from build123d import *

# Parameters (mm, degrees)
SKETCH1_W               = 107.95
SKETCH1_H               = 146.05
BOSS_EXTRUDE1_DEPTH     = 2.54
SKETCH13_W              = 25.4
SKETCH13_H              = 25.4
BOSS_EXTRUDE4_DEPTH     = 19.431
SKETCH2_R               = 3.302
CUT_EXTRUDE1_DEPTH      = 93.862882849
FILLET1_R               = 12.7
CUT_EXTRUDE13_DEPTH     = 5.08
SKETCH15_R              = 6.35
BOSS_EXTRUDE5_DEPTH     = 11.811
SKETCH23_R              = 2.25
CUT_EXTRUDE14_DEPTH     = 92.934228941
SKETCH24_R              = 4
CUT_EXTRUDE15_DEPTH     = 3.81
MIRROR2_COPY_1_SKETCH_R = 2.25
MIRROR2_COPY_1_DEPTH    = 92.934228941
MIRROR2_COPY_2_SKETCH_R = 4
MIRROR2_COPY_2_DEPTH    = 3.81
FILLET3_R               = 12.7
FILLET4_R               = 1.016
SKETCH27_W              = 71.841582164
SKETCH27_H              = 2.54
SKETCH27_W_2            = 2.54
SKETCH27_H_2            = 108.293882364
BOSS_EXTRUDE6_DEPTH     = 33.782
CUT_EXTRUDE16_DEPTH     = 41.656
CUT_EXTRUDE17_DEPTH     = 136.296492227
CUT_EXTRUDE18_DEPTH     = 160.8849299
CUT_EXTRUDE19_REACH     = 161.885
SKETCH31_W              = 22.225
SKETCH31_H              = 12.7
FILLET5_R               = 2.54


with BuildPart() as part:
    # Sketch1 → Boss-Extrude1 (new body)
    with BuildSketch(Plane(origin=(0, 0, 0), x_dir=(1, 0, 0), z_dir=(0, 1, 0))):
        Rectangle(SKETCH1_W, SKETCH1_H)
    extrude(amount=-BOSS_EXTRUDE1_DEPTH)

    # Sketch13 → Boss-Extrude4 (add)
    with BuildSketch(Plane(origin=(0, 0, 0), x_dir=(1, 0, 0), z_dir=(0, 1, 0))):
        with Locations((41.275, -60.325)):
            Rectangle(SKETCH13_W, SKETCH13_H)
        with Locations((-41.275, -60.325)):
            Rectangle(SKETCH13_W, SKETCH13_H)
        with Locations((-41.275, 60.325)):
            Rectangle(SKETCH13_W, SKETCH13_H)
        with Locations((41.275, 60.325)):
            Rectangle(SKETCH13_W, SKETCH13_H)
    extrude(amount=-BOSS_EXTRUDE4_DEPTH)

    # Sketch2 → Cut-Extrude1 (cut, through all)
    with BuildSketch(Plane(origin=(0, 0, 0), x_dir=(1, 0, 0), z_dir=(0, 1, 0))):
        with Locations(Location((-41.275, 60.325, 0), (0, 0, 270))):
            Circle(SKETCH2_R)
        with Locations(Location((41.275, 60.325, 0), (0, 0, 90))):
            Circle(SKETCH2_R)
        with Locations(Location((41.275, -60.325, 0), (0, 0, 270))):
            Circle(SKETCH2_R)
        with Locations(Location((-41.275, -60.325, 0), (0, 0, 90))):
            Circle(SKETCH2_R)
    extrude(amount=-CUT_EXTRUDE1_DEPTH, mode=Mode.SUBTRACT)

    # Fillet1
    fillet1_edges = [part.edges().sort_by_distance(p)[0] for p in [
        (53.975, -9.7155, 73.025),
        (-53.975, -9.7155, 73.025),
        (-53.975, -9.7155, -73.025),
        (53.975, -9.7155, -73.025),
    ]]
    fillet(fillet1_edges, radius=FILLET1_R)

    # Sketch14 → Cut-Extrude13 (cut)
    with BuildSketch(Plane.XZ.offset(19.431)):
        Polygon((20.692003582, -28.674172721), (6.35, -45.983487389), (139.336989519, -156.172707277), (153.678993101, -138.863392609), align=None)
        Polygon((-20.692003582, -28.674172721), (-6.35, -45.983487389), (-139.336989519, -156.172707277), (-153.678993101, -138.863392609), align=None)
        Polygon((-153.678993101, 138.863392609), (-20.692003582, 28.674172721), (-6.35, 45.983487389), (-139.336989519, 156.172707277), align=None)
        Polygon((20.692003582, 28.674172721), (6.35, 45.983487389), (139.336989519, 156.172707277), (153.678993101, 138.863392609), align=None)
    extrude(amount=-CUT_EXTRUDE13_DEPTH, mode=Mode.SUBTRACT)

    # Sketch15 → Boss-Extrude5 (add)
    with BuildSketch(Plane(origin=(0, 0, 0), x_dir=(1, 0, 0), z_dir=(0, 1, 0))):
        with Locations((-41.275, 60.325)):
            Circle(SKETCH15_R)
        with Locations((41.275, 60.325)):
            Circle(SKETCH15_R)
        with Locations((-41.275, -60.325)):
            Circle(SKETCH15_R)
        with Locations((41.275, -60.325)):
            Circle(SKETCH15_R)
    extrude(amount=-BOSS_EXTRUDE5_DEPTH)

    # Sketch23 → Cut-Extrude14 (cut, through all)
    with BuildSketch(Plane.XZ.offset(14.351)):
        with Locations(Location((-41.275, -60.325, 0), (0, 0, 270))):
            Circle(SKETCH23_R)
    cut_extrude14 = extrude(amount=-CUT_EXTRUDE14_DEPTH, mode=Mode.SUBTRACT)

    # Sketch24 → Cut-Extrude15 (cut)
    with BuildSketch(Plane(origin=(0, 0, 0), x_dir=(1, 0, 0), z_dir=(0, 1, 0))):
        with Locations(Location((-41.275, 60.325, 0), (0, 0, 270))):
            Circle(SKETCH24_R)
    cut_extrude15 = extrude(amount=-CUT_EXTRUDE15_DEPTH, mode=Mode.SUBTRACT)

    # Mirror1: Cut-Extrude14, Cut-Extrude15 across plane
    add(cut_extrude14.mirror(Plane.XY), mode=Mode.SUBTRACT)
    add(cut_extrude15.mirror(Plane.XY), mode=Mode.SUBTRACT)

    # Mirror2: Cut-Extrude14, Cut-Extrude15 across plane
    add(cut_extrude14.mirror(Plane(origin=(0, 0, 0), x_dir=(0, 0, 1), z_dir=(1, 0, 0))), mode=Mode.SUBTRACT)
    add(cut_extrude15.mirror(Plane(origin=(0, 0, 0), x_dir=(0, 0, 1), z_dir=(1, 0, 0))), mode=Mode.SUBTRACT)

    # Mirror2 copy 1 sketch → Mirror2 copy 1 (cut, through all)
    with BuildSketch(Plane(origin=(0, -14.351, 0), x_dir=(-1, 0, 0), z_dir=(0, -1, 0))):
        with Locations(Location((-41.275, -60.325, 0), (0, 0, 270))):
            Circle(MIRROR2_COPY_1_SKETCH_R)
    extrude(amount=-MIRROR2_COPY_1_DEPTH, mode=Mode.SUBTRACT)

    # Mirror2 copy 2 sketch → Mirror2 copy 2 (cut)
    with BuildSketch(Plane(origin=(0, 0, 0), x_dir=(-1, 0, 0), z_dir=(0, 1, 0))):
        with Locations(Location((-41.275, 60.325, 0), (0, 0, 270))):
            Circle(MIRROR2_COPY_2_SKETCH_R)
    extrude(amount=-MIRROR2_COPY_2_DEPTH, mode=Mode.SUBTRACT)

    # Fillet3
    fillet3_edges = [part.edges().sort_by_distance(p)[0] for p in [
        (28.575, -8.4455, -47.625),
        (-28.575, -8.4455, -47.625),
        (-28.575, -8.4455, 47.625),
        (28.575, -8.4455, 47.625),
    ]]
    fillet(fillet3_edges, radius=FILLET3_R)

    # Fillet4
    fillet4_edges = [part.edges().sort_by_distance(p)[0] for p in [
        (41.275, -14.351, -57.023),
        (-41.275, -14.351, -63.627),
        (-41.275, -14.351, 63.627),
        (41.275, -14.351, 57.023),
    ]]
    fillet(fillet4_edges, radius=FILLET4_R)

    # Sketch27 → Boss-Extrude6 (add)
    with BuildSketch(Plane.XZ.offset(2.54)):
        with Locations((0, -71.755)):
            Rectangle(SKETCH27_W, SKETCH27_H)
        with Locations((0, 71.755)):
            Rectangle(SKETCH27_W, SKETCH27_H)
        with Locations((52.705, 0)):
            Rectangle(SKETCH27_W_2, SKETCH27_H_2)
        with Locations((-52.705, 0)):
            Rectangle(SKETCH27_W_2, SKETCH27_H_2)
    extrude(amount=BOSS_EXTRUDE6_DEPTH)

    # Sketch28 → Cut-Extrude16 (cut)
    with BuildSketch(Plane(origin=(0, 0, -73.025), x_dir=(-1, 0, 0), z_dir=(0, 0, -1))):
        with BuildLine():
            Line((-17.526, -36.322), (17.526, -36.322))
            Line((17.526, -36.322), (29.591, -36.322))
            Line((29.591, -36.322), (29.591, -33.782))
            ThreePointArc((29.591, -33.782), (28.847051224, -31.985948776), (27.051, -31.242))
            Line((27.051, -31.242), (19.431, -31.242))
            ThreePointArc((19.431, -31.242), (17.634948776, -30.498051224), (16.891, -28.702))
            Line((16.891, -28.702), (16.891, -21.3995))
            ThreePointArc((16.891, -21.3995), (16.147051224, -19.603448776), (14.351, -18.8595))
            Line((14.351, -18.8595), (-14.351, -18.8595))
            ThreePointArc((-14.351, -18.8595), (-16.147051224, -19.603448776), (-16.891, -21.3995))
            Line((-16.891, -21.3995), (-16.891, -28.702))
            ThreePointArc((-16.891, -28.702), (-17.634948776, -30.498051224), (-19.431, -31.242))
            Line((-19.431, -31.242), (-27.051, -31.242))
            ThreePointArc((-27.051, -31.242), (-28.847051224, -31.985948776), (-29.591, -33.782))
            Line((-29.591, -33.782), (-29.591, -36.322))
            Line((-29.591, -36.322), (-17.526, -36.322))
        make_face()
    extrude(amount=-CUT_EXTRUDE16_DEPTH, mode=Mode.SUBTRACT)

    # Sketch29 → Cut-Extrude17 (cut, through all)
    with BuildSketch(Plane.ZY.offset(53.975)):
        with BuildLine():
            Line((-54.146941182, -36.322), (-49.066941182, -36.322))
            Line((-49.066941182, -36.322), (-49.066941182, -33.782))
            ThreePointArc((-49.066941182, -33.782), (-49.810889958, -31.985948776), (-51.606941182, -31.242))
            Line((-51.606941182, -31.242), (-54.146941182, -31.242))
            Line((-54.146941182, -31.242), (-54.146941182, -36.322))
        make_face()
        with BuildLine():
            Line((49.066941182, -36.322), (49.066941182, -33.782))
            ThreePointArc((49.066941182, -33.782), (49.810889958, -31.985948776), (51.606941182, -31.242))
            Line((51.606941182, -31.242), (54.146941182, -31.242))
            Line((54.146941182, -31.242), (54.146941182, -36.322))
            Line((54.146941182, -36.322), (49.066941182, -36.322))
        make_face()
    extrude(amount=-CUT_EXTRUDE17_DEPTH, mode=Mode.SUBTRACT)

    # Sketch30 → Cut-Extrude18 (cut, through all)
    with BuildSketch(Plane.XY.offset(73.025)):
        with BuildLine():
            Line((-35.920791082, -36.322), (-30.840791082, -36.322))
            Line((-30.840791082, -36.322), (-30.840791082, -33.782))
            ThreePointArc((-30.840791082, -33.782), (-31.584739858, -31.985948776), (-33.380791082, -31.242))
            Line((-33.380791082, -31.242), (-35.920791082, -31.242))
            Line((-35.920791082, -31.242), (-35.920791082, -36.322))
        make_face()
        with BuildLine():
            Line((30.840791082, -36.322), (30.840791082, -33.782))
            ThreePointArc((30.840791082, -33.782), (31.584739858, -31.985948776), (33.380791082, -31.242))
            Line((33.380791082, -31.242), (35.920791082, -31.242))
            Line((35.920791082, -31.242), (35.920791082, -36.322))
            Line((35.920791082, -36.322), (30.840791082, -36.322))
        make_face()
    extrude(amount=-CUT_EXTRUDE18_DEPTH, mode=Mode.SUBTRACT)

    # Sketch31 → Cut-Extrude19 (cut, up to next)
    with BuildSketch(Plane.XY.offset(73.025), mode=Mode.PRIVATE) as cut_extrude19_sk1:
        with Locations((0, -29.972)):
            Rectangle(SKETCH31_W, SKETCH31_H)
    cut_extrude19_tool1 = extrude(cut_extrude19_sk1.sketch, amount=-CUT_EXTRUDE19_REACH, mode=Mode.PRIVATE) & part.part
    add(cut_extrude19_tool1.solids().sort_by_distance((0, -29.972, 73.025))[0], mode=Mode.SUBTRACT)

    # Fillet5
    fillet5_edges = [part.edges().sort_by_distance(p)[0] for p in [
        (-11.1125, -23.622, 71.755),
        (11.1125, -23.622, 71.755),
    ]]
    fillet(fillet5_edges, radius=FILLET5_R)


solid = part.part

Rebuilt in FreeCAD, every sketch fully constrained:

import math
import FreeCAD as App
import Part
import Sketcher

V = App.Vector
Q = App.Units.Quantity


def edges_at(feature, points):
    """Names of the edges that pass closest to the given points."""
    edges = feature.Shape.Edges
    near = lambda p: min(range(len(edges)), key=lambda i: edges[i].distToShape(Part.Vertex(*p))[0])
    return sorted({f"Edge{near(p) + 1}" for p in points})


def add_polygon(sketch, points):
    """Adds a closed chain of lines whose ends are joined by coincident constraints."""
    first, n = sketch.GeometryCount, len(points)
    for a, b in zip(points, points[1:] + points[:1]):
        sketch.addGeometry(Part.LineSegment(App.Vector(*a, 0), App.Vector(*b, 0)), False)
    for i in range(n):
        sketch.addConstraint(Sketcher.Constraint("Coincident", first + i, 2, first + (i + 1) % n, 1))

doc = App.newDocument("Part")
params = doc.addObject("Spreadsheet::Sheet", "Params")
for row, (alias, value) in enumerate([
    ("sketch1_width", "4.25 in"),
    ("sketch1_height", "5.75 in"),
    ("pad1_length", "0.1 in"),
    ("sketch2_width", "1 in"),
    ("pad2_length", "0.765 in"),
    ("sketch3_diameter", "0.26 in"),
    ("fillet_radius", "0.5 in"),
    ("sketch4_length", "0.885 in"),
    ("pocket2_length", "0.2 in"),
    ("sketch5_diameter", "0.5 in"),
    ("pad3_length", "0.465 in"),
    ("pocket4_length", "0.15 in"),
    ("pocket6_length", "0.15 in"),
    ("fillet2_radius", "0.5 in"),
    ("fillet3_radius", "0.04 in"),
    ("sketch10_width", "0.1 in"),
    ("pad4_length", "1.33 in"),
    ("sketch11_radius", "0.1 in"),
    ("sketch11_width", "0.3 in"),
    ("sketch11_height", "0.1 in"),
    ("sketch11_width2", "1.13 in"),
    ("pocket7_length", "1.64 in"),
    ("sketch12_radius", "0.1 in"),
    ("sketch12_width", "0.1 in"),
    ("sketch13_radius", "0.1 in"),
    ("sketch13_width", "0.2 in"),
    ("sketch14_height", "0.5 in"),
    ("sketch14_width", "0.875 in"),
    ("fillet4_radius", "0.1 in"),
], start=1):
    params.set(f"A{row}", alias)
    params.set(f"B{row}", "=" + value)
    params.setAlias(f"B{row}", alias)

body = doc.addObject("PartDesign::Body", "Body")

# Sketch on XZ plane
sketch1 = body.newObject("Sketcher::SketchObject", "Sketch")
sketch1.AttachmentSupport = (doc.getObject("XZ_Plane"), [""])
sketch1.MapMode = "FlatFace"
add_polygon(sketch1, [(-54, -73), (-54, 73), (54, 73), (54, -73)])  # lines 0-3
sketch1.addConstraint([
    Sketcher.Constraint("Vertical", 0),
    Sketcher.Constraint("Horizontal", 1),
    Sketcher.Constraint("Vertical", 2),
    Sketcher.Constraint("Horizontal", 3),
    Sketcher.Constraint("Symmetric", 0, 2, 2, 2, -1, 1),
    Sketcher.Constraint("DistanceX", 1, 1, 1, 2, Q("4.25 in")),
    Sketcher.Constraint("DistanceY", 0, 1, 0, 2, Q("5.75 in")),
])
sketch1.setExpression("Constraints[9]", "Params.sketch1_width")
sketch1.setExpression("Constraints[10]", "Params.sketch1_height")
pad1 = body.newObject("PartDesign::Pad", "Pad")
pad1.Profile = sketch1
pad1.setExpression("Length", "Params.pad1_length")

# Sketch on XZ plane
sketch2 = body.newObject("Sketcher::SketchObject", "Sketch001")
sketch2.AttachmentSupport = (doc.getObject("XZ_Plane"), [""])
sketch2.MapMode = "FlatFace"
add_polygon(sketch2, [(29, 48), (29, 73), (54, 73), (54, 48)])  # lines 0-3
add_polygon(sketch2, [(-54, 48), (-54, 73), (-29, 73), (-29, 48)])  # lines 4-7
add_polygon(sketch2, [(-54, -73), (-54, -48), (-29, -48), (-29, -73)])  # lines 8-11
add_polygon(sketch2, [(29, -73), (29, -48), (54, -48), (54, -73)])  # lines 12-15
sketch2.addConstraint([
    Sketcher.Constraint("Vertical", 0),
    Sketcher.Constraint("Horizontal", 1),
    Sketcher.Constraint("Vertical", 2),
    Sketcher.Constraint("Horizontal", 3),
    Sketcher.Constraint("Vertical", 4),
    Sketcher.Constraint("Horizontal", 5),
    Sketcher.Constraint("Vertical", 6),
    Sketcher.Constraint("Horizontal", 7),
    Sketcher.Constraint("Vertical", 8),
    Sketcher.Constraint("Horizontal", 9),
    Sketcher.Constraint("Vertical", 10),
    Sketcher.Constraint("Horizontal", 11),
    Sketcher.Constraint("Vertical", 12),
    Sketcher.Constraint("Horizontal", 13),
    Sketcher.Constraint("Vertical", 14),
    Sketcher.Constraint("Horizontal", 15),
    Sketcher.Constraint("Symmetric", 2, 2, 8, 2, -1, 1),
    Sketcher.Constraint("Symmetric", 0, 2, 10, 2, -1, 1),
    Sketcher.Constraint("Symmetric", 6, 2, 12, 2, -1, 1),
    Sketcher.Constraint("Symmetric", 4, 2, 14, 2, -1, 1),
    Sketcher.Constraint("Symmetric", 1, 2, 4, 2, -2),
    Sketcher.Constraint("Symmetric", 3, 2, 6, 2, -2),
    Sketcher.Constraint("Equal", 15, 0),
    Sketcher.Constraint("DistanceX", 1, 1, 1, 2, Q("1 in")),
    Sketcher.Constraint("DistanceX", 4, 2, 0, 2, Q("3.25 in")),
    Sketcher.Constraint("DistanceY", 8, 2, 7, 2, Q("3.75 in")),
])
sketch2.setExpression("Constraints[39]", "Params.sketch2_width")
pad2 = body.newObject("PartDesign::Pad", "Pad001")
pad2.Profile = sketch2
pad2.setExpression("Length", "Params.pad2_length")

# Sketch on XZ plane
sketch3 = body.newObject("Sketcher::SketchObject", "Sketch002")
sketch3.AttachmentSupport = (doc.getObject("XZ_Plane"), [""])
sketch3.MapMode = "FlatFace"
sketch3.addGeometry([
    Part.Circle(V(-41.3, -60.3, 0), V(0, 0, 1), 3.3),
    Part.Circle(V(41.3, -60.3, 0), V(0, 0, 1), 3.3),
    Part.Circle(V(41.3, 60.3, 0), V(0, 0, 1), 3.3),
    Part.Circle(V(-41.3, 60.3, 0), V(0, 0, 1), 3.3),
], False)
sketch3.addConstraint([
    Sketcher.Constraint("Equal", 0, 1),
    Sketcher.Constraint("Equal", 1, 2),
    Sketcher.Constraint("Equal", 2, 3),
    Sketcher.Constraint("Symmetric", 0, 3, 2, 3, -1, 1),
    Sketcher.Constraint("Symmetric", 1, 3, 3, 3, -1, 1),
    Sketcher.Constraint("Symmetric", 0, 3, 1, 3, -2),
    Sketcher.Constraint("Diameter", 0, Q("0.26 in")),
    Sketcher.Constraint("DistanceX", 0, 3, 1, 3, Q("3.25 in")),
    Sketcher.Constraint("DistanceY", 1, 3, 2, 3, Q("4.75 in")),
])
sketch3.setExpression("Constraints[6]", "Params.sketch3_diameter")
pocket1 = body.newObject("PartDesign::Pocket", "Pocket")
pocket1.Profile = sketch3
pocket1.Type = "ThroughAll"
pocket1.Reversed = True
doc.recompute()

fillet = body.newObject("PartDesign::Fillet", "Fillet")
fillet.Base = (pocket1, edges_at(pocket1, [
    (53.975, -9.716, 73.025),
    (-53.975, -9.716, 73.025),
    (-53.975, -9.716, -73.025),
    (53.975, -9.716, -73.025),
]))
fillet.setExpression("Radius", "Params.fillet_radius")

# Sketch on XZ plane
sketch4 = body.newObject("Sketcher::SketchObject", "Sketch003")
sketch4.AttachmentSupport = (doc.getObject("XZ_Plane"), [""])
sketch4.MapMode = "FlatFace"
sketch4.AttachmentOffset = App.Placement(V(0, 0, 0.765 * 25.4), App.Rotation())
add_polygon(sketch4, [(21, -29), (6, -46), (139, -156), (154, -139)])  # lines 0-3
add_polygon(sketch4, [(-6, -46), (-21, -29), (-154, -139), (-139, -156)])  # lines 4-7
add_polygon(sketch4, [(-154, 139), (-21, 29), (-6, 46), (-139, 156)])  # lines 8-11
add_polygon(sketch4, [(6, 46), (21, 29), (154, 139), (139, 156)])  # lines 12-15
sketch4.addConstraint([
    Sketcher.Constraint("Symmetric", 3, 2, 8, 2, -1, 1),
    Sketcher.Constraint("Symmetric", 0, 2, 9, 2, -1, 1),
    Sketcher.Constraint("Symmetric", 1, 2, 10, 2, -1, 1),
    Sketcher.Constraint("Symmetric", 2, 2, 11, 2, -1, 1),
    Sketcher.Constraint("Symmetric", 4, 2, 12, 2, -1, 1),
    Sketcher.Constraint("Symmetric", 5, 2, 13, 2, -1, 1),
    Sketcher.Constraint("Symmetric", 6, 2, 14, 2, -1, 1),
    Sketcher.Constraint("Symmetric", 7, 2, 15, 2, -1, 1),
    Sketcher.Constraint("Symmetric", 3, 2, 4, 2, -2),
    Sketcher.Constraint("Symmetric", 2, 2, 5, 2, -2),
    Sketcher.Constraint("Symmetric", 1, 2, 6, 2, -2),
    Sketcher.Constraint("Symmetric", 0, 2, 7, 2, -2),
    Sketcher.Constraint("Perpendicular", 0, 1),
    Sketcher.Constraint("Perpendicular", 1, 2),
    Sketcher.Constraint("Perpendicular", 2, 3),
    Sketcher.Constraint("DistanceX", 7, 2, 0, 2, Q("0.5 in")),
    Sketcher.Constraint("Distance", 0, Q("0.885 in")),
    Sketcher.Constraint("DistanceX", 4, 2, 2, 2, Q("6.8649999 in")),
    Sketcher.Constraint("Distance", 1, Q("172.70554 mm")),
    Sketcher.Constraint("DistanceY", 7, 2, 8, 2, Q("74.65766 mm")),
])
sketch4.setExpression("Constraints[32]", "Params.sketch4_length")
pocket2 = body.newObject("PartDesign::Pocket", "Pocket001")
pocket2.Profile = sketch4
pocket2.setExpression("Length", "Params.pocket2_length")

# Sketch on XZ plane
sketch5 = body.newObject("Sketcher::SketchObject", "Sketch004")
sketch5.AttachmentSupport = (doc.getObject("XZ_Plane"), [""])
sketch5.MapMode = "FlatFace"
sketch5.addGeometry([
    Part.Circle(V(-41, -60, 0), V(0, 0, 1), 6),
    Part.Circle(V(41, -60, 0), V(0, 0, 1), 6),
    Part.Circle(V(-41, 60, 0), V(0, 0, 1), 6),
    Part.Circle(V(41, 60, 0), V(0, 0, 1), 6),
], False)
sketch5.addConstraint([
    Sketcher.Constraint("Equal", 0, 1),
    Sketcher.Constraint("Equal", 1, 2),
    Sketcher.Constraint("Equal", 2, 3),
    Sketcher.Constraint("Symmetric", 1, 3, 2, 3, -1, 1),
    Sketcher.Constraint("Symmetric", 0, 3, 3, 3, -1, 1),
    Sketcher.Constraint("Symmetric", 0, 3, 1, 3, -2),
    Sketcher.Constraint("Diameter", 0, Q("0.5 in")),
    Sketcher.Constraint("DistanceX", 0, 3, 1, 3, Q("3.25 in")),
    Sketcher.Constraint("DistanceY", 0, 3, 2, 3, Q("4.75 in")),
])
sketch5.setExpression("Constraints[6]", "Params.sketch5_diameter")
pad3 = body.newObject("PartDesign::Pad", "Pad002")
pad3.Profile = sketch5
pad3.setExpression("Length", "Params.pad3_length")

# Sketch on XZ plane
sketch6 = body.newObject("Sketcher::SketchObject", "Sketch005")
sketch6.AttachmentSupport = (doc.getObject("XZ_Plane"), [""])
sketch6.MapMode = "FlatFace"
sketch6.AttachmentOffset = App.Placement(V(0, 0, 0.565 * 25.4), App.Rotation())
sketch6.addGeometry(Part.Circle(V(-41.3, -60.3, 0), V(0, 0, 1), 2.2), False)
sketch6.addConstraint([
    Sketcher.Constraint("Diameter", 0, Q("4.5 mm")),
    Sketcher.Constraint("DistanceX", 0, 3, -1, 1, Q("1.625 in")),
    Sketcher.Constraint("DistanceY", 0, 3, -1, 1, Q("2.375 in")),
])
pocket3 = body.newObject("PartDesign::Pocket", "Pocket002")
pocket3.Profile = sketch6
pocket3.Type = "ThroughAll"

# Sketch on XZ plane
sketch7 = body.newObject("Sketcher::SketchObject", "Sketch006")
sketch7.AttachmentSupport = (doc.getObject("XZ_Plane"), [""])
sketch7.MapMode = "FlatFace"
sketch7.addGeometry(Part.Circle(V(-41.3, -60.3, 0), V(0, 0, 1), 4), False)
sketch7.addConstraint([
    Sketcher.Constraint("Diameter", 0, Q("8 mm")),
    Sketcher.Constraint("DistanceX", 0, 3, -1, 1, Q("1.625 in")),
    Sketcher.Constraint("DistanceY", 0, 3, -1, 1, Q("2.375 in")),
])
pocket4 = body.newObject("PartDesign::Pocket", "Pocket003")
pocket4.Profile = sketch7
pocket4.setExpression("Length", "Params.pocket4_length")
pocket4.Reversed = True
doc.recompute()

mirrored = body.newObject("PartDesign::Mirrored", "Mirrored")
mirrored.Originals = [pocket3, pocket4]
mirrored.MirrorPlane = (doc.getObject("XY_Plane"), [""])
body.Tip = mirrored
doc.recompute()

mirrored2 = body.newObject("PartDesign::Mirrored", "Mirrored001")
mirrored2.Originals = [pocket3, pocket4]
mirrored2.MirrorPlane = (doc.getObject("YZ_Plane"), [""])
body.Tip = mirrored2

# Sketch on XZ plane
sketch8 = body.newObject("Sketcher::SketchObject", "Sketch007")
sketch8.AttachmentSupport = (doc.getObject("XZ_Plane"), [""])
sketch8.MapMode = "FlatFace"
sketch8.AttachmentOffset = App.Placement(V(0, 0, 0.565 * 25.4), App.Rotation())
sketch8.addGeometry(Part.Circle(V(41.3, 60.3, 0), V(0, 0, 1), 2.2), False)
sketch8.addConstraint([
    Sketcher.Constraint("Diameter", 0, Q("4.5 mm")),
    Sketcher.Constraint("DistanceX", -1, 1, 0, 3, Q("1.625 in")),
    Sketcher.Constraint("DistanceY", -1, 1, 0, 3, Q("2.375 in")),
])
pocket5 = body.newObject("PartDesign::Pocket", "Pocket004")
pocket5.Profile = sketch8
pocket5.Type = "ThroughAll"

# Sketch on XZ plane
sketch9 = body.newObject("Sketcher::SketchObject", "Sketch008")
sketch9.AttachmentSupport = (doc.getObject("XZ_Plane"), [""])
sketch9.MapMode = "FlatFace"
sketch9.addGeometry(Part.Circle(V(41.3, 60.3, 0), V(0, 0, 1), 4), False)
sketch9.addConstraint([
    Sketcher.Constraint("Diameter", 0, Q("8 mm")),
    Sketcher.Constraint("DistanceX", -1, 1, 0, 3, Q("1.625 in")),
    Sketcher.Constraint("DistanceY", -1, 1, 0, 3, Q("2.375 in")),
])
pocket6 = body.newObject("PartDesign::Pocket", "Pocket005")
pocket6.Profile = sketch9
pocket6.setExpression("Length", "Params.pocket6_length")
pocket6.Reversed = True
doc.recompute()

fillet2 = body.newObject("PartDesign::Fillet", "Fillet001")
fillet2.Base = (pocket6, edges_at(pocket6, [
    (28.575, -8.445, -47.625),
    (-28.575, -8.445, -47.625),
    (-28.575, -8.445, 47.625),
    (28.575, -8.445, 47.625),
]))
fillet2.setExpression("Radius", "Params.fillet2_radius")
doc.recompute()

fillet3 = body.newObject("PartDesign::Fillet", "Fillet002")
fillet3.Base = (fillet2, edges_at(fillet2, [
    (41.275, -14.351, -57.023),
    (-41.275, -14.351, -63.627),
    (-41.275, -14.351, 63.627),
    (41.275, -14.351, 57.023),
]))
fillet3.setExpression("Radius", "Params.fillet3_radius")

# Sketch on XZ plane
sketch10 = body.newObject("Sketcher::SketchObject", "Sketch009")
sketch10.AttachmentSupport = (doc.getObject("XZ_Plane"), [""])
sketch10.MapMode = "FlatFace"
sketch10.AttachmentOffset = App.Placement(V(0, 0, 0.1 * 25.4), App.Rotation())
add_polygon(sketch10, [(-35.9, -70.5), (-35.9, -73), (35.9, -73), (35.9, -70.5)])  # lines 0-3
add_polygon(sketch10, [(-35.9, 73), (-35.9, 70.5), (35.9, 70.5), (35.9, 73)])  # lines 4-7
add_polygon(sketch10, [(51.4, 54.1), (51.4, -54.1), (54, -54.1), (54, 54.1)])  # lines 8-11
add_polygon(sketch10, [(-54, 54.1), (-54, -54.1), (-51.4, -54.1), (-51.4, 54.1)])  # lines 12-15
sketch10.addConstraint([
    Sketcher.Constraint("Vertical", 0),
    Sketcher.Constraint("Horizontal", 1),
    Sketcher.Constraint("Vertical", 2),
    Sketcher.Constraint("Horizontal", 3),
    Sketcher.Constraint("Vertical", 4),
    Sketcher.Constraint("Horizontal", 5),
    Sketcher.Constraint("Vertical", 6),
    Sketcher.Constraint("Horizontal", 7),
    Sketcher.Constraint("Vertical", 8),
    Sketcher.Constraint("Horizontal", 9),
    Sketcher.Constraint("Vertical", 10),
    Sketcher.Constraint("Horizontal", 11),
    Sketcher.Constraint("Vertical", 12),
    Sketcher.Constraint("Horizontal", 13),
    Sketcher.Constraint("Vertical", 14),
    Sketcher.Constraint("Horizontal", 15),
    Sketcher.Constraint("Symmetric", 2, 2, 4, 2, -1, 1),
    Sketcher.Constraint("Symmetric", 0, 2, 6, 2, -1, 1),
    Sketcher.Constraint("Symmetric", 10, 2, 12, 2, -1, 1),
    Sketcher.Constraint("Symmetric", 8, 2, 14, 2, -1, 1),
    Sketcher.Constraint("Horizontal", 9, 2, 12, 2),
    Sketcher.Constraint("Vertical", 3, 2, 4, 2),
    Sketcher.Constraint("Equal", 15, 0),
    Sketcher.Constraint("DistanceX", 9, 1, 9, 2, Q("0.1 in")),
    Sketcher.Constraint("DistanceY", 3, 2, 4, 2, Q("5.55 in")),
    Sketcher.Constraint("DistanceX", 12, 2, 8, 2, Q("4.15 in")),
    Sketcher.Constraint("DistanceX", 1, 1, 1, 2, Q("71.841582 mm")),
    Sketcher.Constraint("DistanceY", 8, 2, 8, 1, Q("108.293882 mm")),
])
sketch10.setExpression("Constraints[39]", "Params.sketch10_width")
pad4 = body.newObject("PartDesign::Pad", "Pad003")
pad4.Profile = sketch10
pad4.setExpression("Length", "Params.pad4_length")

# Sketch on XY plane
sketch11 = body.newObject("Sketcher::SketchObject", "Sketch010")
sketch11.AttachmentSupport = (doc.getObject("XY_Plane"), [""])
sketch11.MapMode = "FlatFace"
sketch11.AttachmentOffset = App.Placement(V(0, 0, -2.875 * 25.4), App.Rotation())
sketch11.addGeometry([
    Part.LineSegment(V(-29.6, -36.3, 0), V(-29.6, -33.8, 0)),  # 0
    Part.ArcOfCircle(Part.Circle(V(-27.1, -33.8, 0), V(0, 0, 1), 2.5), math.radians(90), math.radians(180)),  # 1
    Part.LineSegment(V(-27.1, -31.2, 0), V(-19.4, -31.2, 0)),  # 2
    Part.ArcOfCircle(Part.Circle(V(-19.4, -28.7, 0), V(0, 0, 1), 2.5), math.radians(-90), math.radians(0)),  # 3
    Part.LineSegment(V(-16.9, -28.7, 0), V(-16.9, -21.4, 0)),  # 4
    Part.ArcOfCircle(Part.Circle(V(-14.4, -21.4, 0), V(0, 0, 1), 2.5), math.radians(90), math.radians(180)),  # 5
    Part.LineSegment(V(-14.4, -18.9, 0), V(14.4, -18.9, 0)),  # 6
    Part.ArcOfCircle(Part.Circle(V(14.4, -21.4, 0), V(0, 0, 1), 2.5), math.radians(0), math.radians(90)),  # 7
    Part.LineSegment(V(16.9, -21.4, 0), V(16.9, -28.7, 0)),  # 8
    Part.ArcOfCircle(Part.Circle(V(19.4, -28.7, 0), V(0, 0, 1), 2.5), math.radians(-180), math.radians(-90)),  # 9
    Part.LineSegment(V(19.4, -31.2, 0), V(27.1, -31.2, 0)),  # 10
    Part.ArcOfCircle(Part.Circle(V(27.1, -33.8, 0), V(0, 0, 1), 2.5), math.radians(0), math.radians(90)),  # 11
    Part.LineSegment(V(29.6, -33.8, 0), V(29.6, -36.3, 0)),  # 12
    Part.LineSegment(V(29.6, -36.3, 0), V(-29.6, -36.3, 0)),  # 13
], False)
sketch11.addConstraint([
    Sketcher.Constraint("Tangent", 0, 2, 1, 2),
    Sketcher.Constraint("Tangent", 1, 1, 2, 1),
    Sketcher.Constraint("Tangent", 2, 2, 3, 1),
    Sketcher.Constraint("Tangent", 3, 2, 4, 1),
    Sketcher.Constraint("Tangent", 4, 2, 5, 2),
    Sketcher.Constraint("Tangent", 5, 1, 6, 1),
    Sketcher.Constraint("Tangent", 6, 2, 7, 2),
    Sketcher.Constraint("Tangent", 7, 1, 8, 1),
    Sketcher.Constraint("Tangent", 8, 2, 9, 1),
    Sketcher.Constraint("Tangent", 9, 2, 10, 1),
    Sketcher.Constraint("Tangent", 10, 2, 11, 2),
    Sketcher.Constraint("Tangent", 11, 1, 12, 1),
    Sketcher.Constraint("Coincident", 12, 2, 13, 1),
    Sketcher.Constraint("Coincident", 13, 2, 0, 1),
    Sketcher.Constraint("Vertical", 0),
    Sketcher.Constraint("Horizontal", 2),
    Sketcher.Constraint("Vertical", 4),
    Sketcher.Constraint("Horizontal", 6),
    Sketcher.Constraint("Vertical", 8),
    Sketcher.Constraint("Horizontal", 10),
    Sketcher.Constraint("Vertical", 12),
    Sketcher.Constraint("Horizontal", 13),
    Sketcher.Constraint("Equal", 1, 3),
    Sketcher.Constraint("Equal", 3, 5),
    Sketcher.Constraint("Equal", 5, 7),
    Sketcher.Constraint("Equal", 7, 9),
    Sketcher.Constraint("Equal", 9, 11),
    Sketcher.Constraint("Symmetric", 3, 3, 9, 3, -2),
    Sketcher.Constraint("Equal", 2, 10),
    Sketcher.Constraint("Radius", 1, Q("0.1 in")),
    Sketcher.Constraint("DistanceX", 2, 1, 2, 2, Q("0.3 in")),
    Sketcher.Constraint("DistanceY", 0, 1, 0, 2, Q("0.1 in")),
    Sketcher.Constraint("DistanceX", 6, 1, 6, 2, Q("1.13 in")),
    Sketcher.Constraint("DistanceY", 1, 3, -1, 1, Q("1.33 in")),
    Sketcher.Constraint("DistanceY", 4, 1, 4, 2, Q("0.2875 in")),
])
sketch11.setExpression("Constraints[29]", "Params.sketch11_radius")
sketch11.setExpression("Constraints[30]", "Params.sketch11_width")
sketch11.setExpression("Constraints[31]", "Params.sketch11_height")
sketch11.setExpression("Constraints[32]", "Params.sketch11_width2")
pocket7 = body.newObject("PartDesign::Pocket", "Pocket006")
pocket7.Profile = sketch11
pocket7.setExpression("Length", "Params.pocket7_length")
pocket7.Reversed = True

# Sketch on YZ plane
sketch12 = body.newObject("Sketcher::SketchObject", "Sketch011")
sketch12.AttachmentSupport = (doc.getObject("YZ_Plane"), [""])
sketch12.MapMode = "FlatFace"
sketch12.AttachmentOffset = App.Placement(V(0, 0, -2.125 * 25.4), App.Rotation())
sketch12.addGeometry([
    Part.LineSegment(V(-36.3, -54.1, 0), V(-36.3, -49.1, 0)),  # 0
    Part.LineSegment(V(-36.3, -49.1, 0), V(-33.8, -49.1, 0)),  # 1
    Part.ArcOfCircle(Part.Circle(V(-33.8, -51.6, 0), V(0, 0, 1), 2.5), math.radians(0), math.radians(90)),  # 2
    Part.LineSegment(V(-31.2, -51.6, 0), V(-31.2, -54.1, 0)),  # 3
    Part.LineSegment(V(-31.2, -54.1, 0), V(-36.3, -54.1, 0)),  # 4
    Part.LineSegment(V(-33.8, 49.1, 0), V(-36.3, 49.1, 0)),  # 5
    Part.LineSegment(V(-36.3, 49.1, 0), V(-36.3, 54.1, 0)),  # 6
    Part.LineSegment(V(-36.3, 54.1, 0), V(-31.2, 54.1, 0)),  # 7
    Part.LineSegment(V(-31.2, 54.1, 0), V(-31.2, 51.6, 0)),  # 8
    Part.ArcOfCircle(Part.Circle(V(-33.8, 51.6, 0), V(0, 0, 1), 2.5), math.radians(-90), math.radians(0)),  # 9
], False)
sketch12.addConstraint([
    Sketcher.Constraint("Coincident", 0, 2, 1, 1),
    Sketcher.Constraint("Tangent", 1, 2, 2, 2),
    Sketcher.Constraint("Tangent", 2, 1, 3, 1),
    Sketcher.Constraint("Coincident", 3, 2, 4, 1),
    Sketcher.Constraint("Coincident", 4, 2, 0, 1),
    Sketcher.Constraint("Coincident", 5, 2, 6, 1),
    Sketcher.Constraint("Coincident", 6, 2, 7, 1),
    Sketcher.Constraint("Coincident", 7, 2, 8, 1),
    Sketcher.Constraint("Tangent", 8, 2, 9, 2),
    Sketcher.Constraint("Tangent", 9, 1, 5, 1),
    Sketcher.Constraint("Vertical", 0),
    Sketcher.Constraint("Horizontal", 1),
    Sketcher.Constraint("Vertical", 3),
    Sketcher.Constraint("Horizontal", 4),
    Sketcher.Constraint("Horizontal", 5),
    Sketcher.Constraint("Vertical", 6),
    Sketcher.Constraint("Horizontal", 7),
    Sketcher.Constraint("Vertical", 8),
    Sketcher.Constraint("Equal", 2, 9),
    Sketcher.Constraint("Symmetric", 2, 3, 9, 3, -1),
    Sketcher.Constraint("Symmetric", 4, 2, 6, 2, -1),
    Sketcher.Constraint("Equal", 7, 0),
    Sketcher.Constraint("Radius", 2, Q("0.1 in")),
    Sketcher.Constraint("DistanceX", 1, 1, 1, 2, Q("0.1 in")),
    Sketcher.Constraint("DistanceX", 2, 3, -1, 1, Q("1.33 in")),
    Sketcher.Constraint("DistanceY", 2, 3, -1, 1, Q("51.606941 mm")),
])
sketch12.setExpression("Constraints[22]", "Params.sketch12_radius")
sketch12.setExpression("Constraints[23]", "Params.sketch12_width")
pocket8 = body.newObject("PartDesign::Pocket", "Pocket007")
pocket8.Profile = sketch12
pocket8.Type = "ThroughAll"
pocket8.Reversed = True

# Sketch on XY plane
sketch13 = body.newObject("Sketcher::SketchObject", "Sketch012")
sketch13.AttachmentSupport = (doc.getObject("XY_Plane"), [""])
sketch13.MapMode = "FlatFace"
sketch13.AttachmentOffset = App.Placement(V(0, 0, 2.875 * 25.4), App.Rotation())
sketch13.addGeometry([
    Part.LineSegment(V(-35.9, -36.3, 0), V(-30.8, -36.3, 0)),  # 0
    Part.LineSegment(V(-30.8, -36.3, 0), V(-30.8, -33.8, 0)),  # 1
    Part.ArcOfCircle(Part.Circle(V(-33.4, -33.8, 0), V(0, 0, 1), 2.5), math.radians(0), math.radians(90)),  # 2
    Part.LineSegment(V(-33.4, -31.2, 0), V(-35.9, -31.2, 0)),  # 3
    Part.LineSegment(V(-35.9, -31.2, 0), V(-35.9, -36.3, 0)),  # 4
    Part.LineSegment(V(30.8, -33.8, 0), V(30.8, -36.3, 0)),  # 5
    Part.LineSegment(V(30.8, -36.3, 0), V(35.9, -36.3, 0)),  # 6
    Part.LineSegment(V(35.9, -36.3, 0), V(35.9, -31.2, 0)),  # 7
    Part.LineSegment(V(35.9, -31.2, 0), V(33.4, -31.2, 0)),  # 8
    Part.ArcOfCircle(Part.Circle(V(33.4, -33.8, 0), V(0, 0, 1), 2.5), math.radians(90), math.radians(180)),  # 9
], False)
sketch13.addConstraint([
    Sketcher.Constraint("Coincident", 0, 2, 1, 1),
    Sketcher.Constraint("Tangent", 1, 2, 2, 1),
    Sketcher.Constraint("Tangent", 2, 2, 3, 1),
    Sketcher.Constraint("Coincident", 3, 2, 4, 1),
    Sketcher.Constraint("Coincident", 4, 2, 0, 1),
    Sketcher.Constraint("Coincident", 5, 2, 6, 1),
    Sketcher.Constraint("Coincident", 6, 2, 7, 1),
    Sketcher.Constraint("Coincident", 7, 2, 8, 1),
    Sketcher.Constraint("Tangent", 8, 2, 9, 1),
    Sketcher.Constraint("Tangent", 9, 2, 5, 1),
    Sketcher.Constraint("Horizontal", 0),
    Sketcher.Constraint("Vertical", 1),
    Sketcher.Constraint("Horizontal", 3),
    Sketcher.Constraint("Vertical", 4),
    Sketcher.Constraint("Vertical", 5),
    Sketcher.Constraint("Horizontal", 6),
    Sketcher.Constraint("Vertical", 7),
    Sketcher.Constraint("Horizontal", 8),
    Sketcher.Constraint("Equal", 2, 9),
    Sketcher.Constraint("Symmetric", 2, 3, 9, 3, -2),
    Sketcher.Constraint("Symmetric", 4, 2, 6, 2, -2),
    Sketcher.Constraint("Equal", 8, 1),
    Sketcher.Constraint("Radius", 2, Q("0.1 in")),
    Sketcher.Constraint("DistanceX", 0, 1, 0, 2, Q("0.2 in")),
    Sketcher.Constraint("DistanceY", 2, 3, -1, 1, Q("1.33 in")),
    Sketcher.Constraint("DistanceX", 2, 3, -1, 1, Q("33.380791 mm")),
])
sketch13.setExpression("Constraints[22]", "Params.sketch13_radius")
sketch13.setExpression("Constraints[23]", "Params.sketch13_width")
pocket9 = body.newObject("PartDesign::Pocket", "Pocket008")
pocket9.Profile = sketch13
pocket9.Type = "ThroughAll"

# Sketch on XY plane
sketch14 = body.newObject("Sketcher::SketchObject", "Sketch013")
sketch14.AttachmentSupport = (doc.getObject("XY_Plane"), [""])
sketch14.MapMode = "FlatFace"
sketch14.AttachmentOffset = App.Placement(V(0, 0, 2.875 * 25.4), App.Rotation())
add_polygon(sketch14, [(-11, -24), (-11, -36), (11, -36), (11, -24)])  # lines 0-3
sketch14.addConstraint([
    Sketcher.Constraint("Vertical", 0),
    Sketcher.Constraint("Horizontal", 1),
    Sketcher.Constraint("Vertical", 2),
    Sketcher.Constraint("Horizontal", 3),
    Sketcher.Constraint("DistanceY", 0, 2, 0, 1, Q("0.5 in")),
    Sketcher.Constraint("DistanceX", 1, 1, 1, 2, Q("0.875 in")),
    Sketcher.Constraint("DistanceY", 0, 2, -1, 1, Q("1.43 in")),
    Sketcher.Constraint("DistanceX", 0, 2, -1, 1, Q("0.4375 in")),
])
sketch14.setExpression("Constraints[8]", "Params.sketch14_height")
sketch14.setExpression("Constraints[9]", "Params.sketch14_width")
pocket10 = body.newObject("PartDesign::Pocket", "Pocket009")
pocket10.Profile = sketch14
pocket10.Type = "UpToFirst"
doc.recompute()

fillet4 = body.newObject("PartDesign::Fillet", "Fillet003")
fillet4.Base = (pocket10, edges_at(pocket10, [(-11.113, -23.622, 71.755), (11.113, -23.622, 71.755)]))
fillet4.setExpression("Radius", "Params.fillet4_radius")

doc.recompute()
